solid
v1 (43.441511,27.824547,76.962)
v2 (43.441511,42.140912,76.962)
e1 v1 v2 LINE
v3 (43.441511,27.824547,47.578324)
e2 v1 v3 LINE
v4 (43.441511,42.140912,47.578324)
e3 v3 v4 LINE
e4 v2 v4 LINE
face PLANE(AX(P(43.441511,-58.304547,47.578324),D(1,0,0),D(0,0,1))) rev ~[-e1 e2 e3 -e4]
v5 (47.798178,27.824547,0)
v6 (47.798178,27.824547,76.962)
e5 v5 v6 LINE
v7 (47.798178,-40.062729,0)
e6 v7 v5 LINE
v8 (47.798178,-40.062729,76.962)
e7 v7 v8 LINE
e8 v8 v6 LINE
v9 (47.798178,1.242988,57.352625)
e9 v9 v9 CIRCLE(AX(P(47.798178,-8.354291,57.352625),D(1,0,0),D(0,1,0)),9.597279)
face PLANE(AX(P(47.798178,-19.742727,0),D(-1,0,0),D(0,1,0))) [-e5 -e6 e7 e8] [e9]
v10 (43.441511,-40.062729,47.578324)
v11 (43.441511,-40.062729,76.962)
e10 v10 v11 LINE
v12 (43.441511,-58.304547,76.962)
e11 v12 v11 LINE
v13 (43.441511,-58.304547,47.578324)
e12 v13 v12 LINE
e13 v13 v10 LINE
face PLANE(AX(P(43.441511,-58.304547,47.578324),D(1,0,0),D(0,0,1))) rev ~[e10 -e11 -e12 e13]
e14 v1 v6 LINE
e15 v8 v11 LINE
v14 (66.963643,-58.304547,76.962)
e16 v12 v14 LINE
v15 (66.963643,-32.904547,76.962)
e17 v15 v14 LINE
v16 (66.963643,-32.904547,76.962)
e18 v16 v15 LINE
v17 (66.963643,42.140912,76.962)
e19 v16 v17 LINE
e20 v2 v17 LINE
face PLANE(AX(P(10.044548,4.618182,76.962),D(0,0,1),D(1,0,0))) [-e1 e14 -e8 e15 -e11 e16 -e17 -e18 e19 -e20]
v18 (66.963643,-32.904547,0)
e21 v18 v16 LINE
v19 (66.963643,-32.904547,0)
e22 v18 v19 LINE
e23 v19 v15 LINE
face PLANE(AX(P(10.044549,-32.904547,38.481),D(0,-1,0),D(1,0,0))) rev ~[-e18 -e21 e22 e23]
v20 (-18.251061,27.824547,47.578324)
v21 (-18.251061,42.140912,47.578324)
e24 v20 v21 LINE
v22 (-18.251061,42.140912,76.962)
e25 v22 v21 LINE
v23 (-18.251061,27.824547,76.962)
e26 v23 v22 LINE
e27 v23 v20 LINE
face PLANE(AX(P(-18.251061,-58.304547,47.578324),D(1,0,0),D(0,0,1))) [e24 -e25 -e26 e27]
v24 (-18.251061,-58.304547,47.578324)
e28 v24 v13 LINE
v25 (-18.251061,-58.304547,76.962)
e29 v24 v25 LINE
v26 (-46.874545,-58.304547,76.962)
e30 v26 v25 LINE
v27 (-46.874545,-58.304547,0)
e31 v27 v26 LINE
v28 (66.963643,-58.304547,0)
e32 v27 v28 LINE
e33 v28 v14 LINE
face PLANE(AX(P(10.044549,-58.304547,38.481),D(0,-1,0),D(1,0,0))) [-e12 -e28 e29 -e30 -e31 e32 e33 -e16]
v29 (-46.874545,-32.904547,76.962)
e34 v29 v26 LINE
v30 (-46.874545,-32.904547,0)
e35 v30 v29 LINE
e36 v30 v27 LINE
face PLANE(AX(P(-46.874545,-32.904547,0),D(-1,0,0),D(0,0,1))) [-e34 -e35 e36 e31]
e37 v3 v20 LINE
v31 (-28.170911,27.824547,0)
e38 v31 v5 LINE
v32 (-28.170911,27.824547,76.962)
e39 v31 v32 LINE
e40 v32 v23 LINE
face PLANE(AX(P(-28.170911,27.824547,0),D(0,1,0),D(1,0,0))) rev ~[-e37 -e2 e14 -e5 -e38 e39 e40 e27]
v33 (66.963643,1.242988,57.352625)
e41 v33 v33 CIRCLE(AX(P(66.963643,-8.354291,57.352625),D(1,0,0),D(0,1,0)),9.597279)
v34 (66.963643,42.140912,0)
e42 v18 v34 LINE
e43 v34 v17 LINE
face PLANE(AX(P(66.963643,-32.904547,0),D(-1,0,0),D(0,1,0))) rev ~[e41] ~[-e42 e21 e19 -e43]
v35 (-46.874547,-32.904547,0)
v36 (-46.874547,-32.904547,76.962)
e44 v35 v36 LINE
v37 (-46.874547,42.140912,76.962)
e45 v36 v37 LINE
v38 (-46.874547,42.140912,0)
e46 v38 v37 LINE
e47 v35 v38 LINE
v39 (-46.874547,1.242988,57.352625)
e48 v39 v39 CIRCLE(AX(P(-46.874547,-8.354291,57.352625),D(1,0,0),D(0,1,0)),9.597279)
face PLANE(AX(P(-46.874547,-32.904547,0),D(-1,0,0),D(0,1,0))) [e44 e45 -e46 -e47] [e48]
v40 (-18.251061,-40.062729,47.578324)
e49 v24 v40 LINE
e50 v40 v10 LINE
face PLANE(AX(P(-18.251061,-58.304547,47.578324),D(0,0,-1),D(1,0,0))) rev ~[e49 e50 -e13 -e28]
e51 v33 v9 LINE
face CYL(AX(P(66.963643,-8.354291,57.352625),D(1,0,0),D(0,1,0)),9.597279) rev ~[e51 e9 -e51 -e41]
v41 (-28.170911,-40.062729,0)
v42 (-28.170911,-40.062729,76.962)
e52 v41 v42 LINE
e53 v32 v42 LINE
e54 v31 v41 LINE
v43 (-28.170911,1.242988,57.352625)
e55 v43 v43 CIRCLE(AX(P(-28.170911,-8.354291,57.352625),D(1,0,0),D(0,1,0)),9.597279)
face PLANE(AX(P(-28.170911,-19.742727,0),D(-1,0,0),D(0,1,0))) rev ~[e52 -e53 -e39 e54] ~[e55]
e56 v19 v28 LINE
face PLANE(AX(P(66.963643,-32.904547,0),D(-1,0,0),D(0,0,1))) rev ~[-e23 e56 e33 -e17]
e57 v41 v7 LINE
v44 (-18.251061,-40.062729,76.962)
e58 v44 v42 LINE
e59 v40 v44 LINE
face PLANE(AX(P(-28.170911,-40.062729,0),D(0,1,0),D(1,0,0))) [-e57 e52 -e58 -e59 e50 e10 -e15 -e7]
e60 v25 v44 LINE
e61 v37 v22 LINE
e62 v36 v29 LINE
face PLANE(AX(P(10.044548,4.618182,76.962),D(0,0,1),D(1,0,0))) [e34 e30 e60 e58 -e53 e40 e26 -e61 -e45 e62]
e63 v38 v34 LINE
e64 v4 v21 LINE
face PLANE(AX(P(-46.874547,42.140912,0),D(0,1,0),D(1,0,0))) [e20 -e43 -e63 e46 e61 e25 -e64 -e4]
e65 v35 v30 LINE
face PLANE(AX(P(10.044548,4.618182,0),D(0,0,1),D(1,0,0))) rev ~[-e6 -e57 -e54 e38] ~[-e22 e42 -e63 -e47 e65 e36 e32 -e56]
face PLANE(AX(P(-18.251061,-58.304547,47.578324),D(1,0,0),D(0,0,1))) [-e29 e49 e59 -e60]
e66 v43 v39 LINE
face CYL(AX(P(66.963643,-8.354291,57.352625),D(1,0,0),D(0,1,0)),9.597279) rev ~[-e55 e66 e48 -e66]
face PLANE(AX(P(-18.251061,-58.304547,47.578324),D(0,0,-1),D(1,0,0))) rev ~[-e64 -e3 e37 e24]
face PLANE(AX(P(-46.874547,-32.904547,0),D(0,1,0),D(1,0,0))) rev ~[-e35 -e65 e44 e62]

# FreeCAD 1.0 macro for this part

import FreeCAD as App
import Part
import Sketcher
Q = App.Units.Quantity

doc = App.newDocument("Part")
params = doc.addObject("Spreadsheet::Sheet", "Params")
for row, (alias, value) in enumerate([
    ("pad1_length", "3.03 in"),
    ("sketch2_height", "3.03 in"),
    ("pad2_length", "1 in"),
    ("pocket1_length", "5.23 in"),
    ("pocket2_length", "5.08 in"),
    ("pocket3_length", "9.52 in"),
], start=1):
    params.set(f"A{row}", alias)
    params.set(f"B{row}", "=" + value)
    params.setAlias(f"B{row}", alias)

body = doc.addObject("PartDesign::Body", "Body")

# Sketch on XY plane
sketch1 = body.newObject("Sketcher::SketchObject", "Sketch")
sketch1.AttachmentSupport = (doc.getObject("XY_Plane"), [""])
sketch1.MapMode = "FlatFace"
sketch1.addGeometry(Part.LineSegment(App.Vector(-47, 42, 0), App.Vector(-47, -33, 0)), False)
sketch1.addGeometry(Part.LineSegment(App.Vector(-47, -33, 0), App.Vector(67, -33, 0)), False)
sketch1.addGeometry(Part.LineSegment(App.Vector(67, -33, 0), App.Vector(67, 42, 0)), False)
sketch1.addGeometry(Part.LineSegment(App.Vector(67, 42, 0), App.Vector(-47, 42, 0)), False)
sketch1.addGeometry(Part.LineSegment(App.Vector(48, -20, 0), App.Vector(-28, -20, 0)), False)
sketch1.addGeometry(Part.LineSegment(App.Vector(-28, -20, 0), App.Vector(-28, 28, 0)), False)
sketch1.addGeometry(Part.LineSegment(App.Vector(-28, 28, 0), App.Vector(48, 28, 0)), False)
sketch1.addGeometry(Part.LineSegment(App.Vector(48, 28, 0), App.Vector(48, -20, 0)), False)
sketch1.addConstraint(Sketcher.Constraint("Coincident", 0, 2, 1, 1))
sketch1.addConstraint(Sketcher.Constraint("Coincident", 1, 2, 2, 1))
sketch1.addConstraint(Sketcher.Constraint("Coincident", 2, 2, 3, 1))
sketch1.addConstraint(Sketcher.Constraint("Coincident", 3, 2, 0, 1))
sketch1.addConstraint(Sketcher.Constraint("Coincident", 4, 2, 5, 1))
sketch1.addConstraint(Sketcher.Constraint("Coincident", 5, 2, 6, 1))
sketch1.addConstraint(Sketcher.Constraint("Coincident", 6, 2, 7, 1))
sketch1.addConstraint(Sketcher.Constraint("Coincident", 7, 2, 4, 1))
sketch1.addConstraint(Sketcher.Constraint("Vertical", 0))
sketch1.addConstraint(Sketcher.Constraint("Horizontal", 1))
sketch1.addConstraint(Sketcher.Constraint("Vertical", 2))
sketch1.addConstraint(Sketcher.Constraint("Horizontal", 3))
sketch1.addConstraint(Sketcher.Constraint("Horizontal", 4))
sketch1.addConstraint(Sketcher.Constraint("Vertical", 5))
sketch1.addConstraint(Sketcher.Constraint("Horizontal", 6))
sketch1.addConstraint(Sketcher.Constraint("Vertical", 7))
sketch1.addConstraint(Sketcher.Constraint("DistanceX", 1, 1, 1, 2, 113.838189))
sketch1.addConstraint(Sketcher.Constraint("DistanceX", 4, 2, 4, 1, 75.969089))
sketch1.addConstraint(Sketcher.Constraint("DistanceY", 0, 2, 0, 1, 75.045459))
sketch1.addConstraint(Sketcher.Constraint("DistanceY", 5, 1, 5, 2, 47.567274))
sketch1.addConstraint(Sketcher.Constraint("DistanceY", -1, 1, 2, 2, 42.140912))
sketch1.addConstraint(Sketcher.Constraint("DistanceX", 4, 2, -1, 1, 28.170911))
sketch1.addConstraint(Sketcher.Constraint("DistanceY", 0, 2, 4, 2, 13.161821))
sketch1.addConstraint(Sketcher.Constraint("DistanceX", 0, 2, -1, 1, 46.874547))
pad1 = body.newObject("PartDesign::Pad", "Pad")
pad1.Profile = sketch1
pad1.setExpression("Length", "Params.pad1_length")

# Sketch on XZ plane
sketch2 = body.newObject("Sketcher::SketchObject", "Sketch001")
sketch2.AttachmentSupport = (doc.getObject("XZ_Plane"), [""])
sketch2.MapMode = "FlatFace"
sketch2.AttachmentOffset = App.Placement(App.Vector(0, 0, 32.904547), App.Rotation())
sketch2.addGeometry(Part.LineSegment(App.Vector(-47, 77, 0), App.Vector(-47, 0, 0)), False)
sketch2.addGeometry(Part.LineSegment(App.Vector(-47, 0, 0), App.Vector(67, 0, 0)), False)
sketch2.addGeometry(Part.LineSegment(App.Vector(67, 0, 0), App.Vector(67, 77, 0)), False)
sketch2.addGeometry(Part.LineSegment(App.Vector(67, 77, 0), App.Vector(-47, 77, 0)), False)
sketch2.addConstraint(Sketcher.Constraint("Coincident", 0, 2, 1, 1))
sketch2.addConstraint(Sketcher.Constraint("Coincident", 1, 2, 2, 1))
sketch2.addConstraint(Sketcher.Constraint("Coincident", 2, 2, 3, 1))
sketch2.addConstraint(Sketcher.Constraint("Coincident", 3, 2, 0, 1))
sketch2.addConstraint(Sketcher.Constraint("Vertical", 0))
sketch2.addConstraint(Sketcher.Constraint("Horizontal", 1))
sketch2.addConstraint(Sketcher.Constraint("Vertical", 2))
sketch2.addConstraint(Sketcher.Constraint("Horizontal", 3))
sketch2.addConstraint(Sketcher.Constraint("PointOnObject", 0, 2, -1))
sketch2.addConstraint(Sketcher.Constraint("DistanceY", 0, 2, 0, 1, Q("3.03 in")))
sketch2.addConstraint(Sketcher.Constraint("DistanceX", 1, 1, 1, 2, 113.838188))
sketch2.addConstraint(Sketcher.Constraint("DistanceX", 0, 2, -1, 1, 46.874545))
sketch2.setExpression("Constraints[9]", "Params.sketch2_height")
pad2 = body.newObject("PartDesign::Pad", "Pad001")
pad2.Profile = sketch2
pad2.setExpression("Length", "Params.pad2_length")

# Sketch on XZ plane
sketch3 = body.newObject("Sketcher::SketchObject", "Sketch002")
sketch3.AttachmentSupport = (doc.getObject("XZ_Plane"), [""])
sketch3.MapMode = "FlatFace"
sketch3.AttachmentOffset = App.Placement(App.Vector(0, 0, 58.304547), App.Rotation())
sketch3.addGeometry(Part.LineSegment(App.Vector(-18, 77, 0), App.Vector(-18, 48, 0)), False)
sketch3.addGeometry(Part.LineSegment(App.Vector(-18, 48, 0), App.Vector(43, 48, 0)), False)
sketch3.addGeometry(Part.LineSegment(App.Vector(43, 48, 0), App.Vector(43, 77, 0)), False)
sketch3.addGeometry(Part.LineSegment(App.Vector(43, 77, 0), App.Vector(-18, 77, 0)), False)
sketch3.addConstraint(Sketcher.Constraint("Coincident", 0, 2, 1, 1))
sketch3.addConstraint(Sketcher.Constraint("Coincident", 1, 2, 2, 1))
sketch3.addConstraint(Sketcher.Constraint("Coincident", 2, 2, 3, 1))
sketch3.addConstraint(Sketcher.Constraint("Coincident", 3, 2, 0, 1))
sketch3.addConstraint(Sketcher.Constraint("Vertical", 0))
sketch3.addConstraint(Sketcher.Constraint("Horizontal", 1))
sketch3.addConstraint(Sketcher.Constraint("Vertical", 2))
sketch3.addConstraint(Sketcher.Constraint("Horizontal", 3))
sketch3.addConstraint(Sketcher.Constraint("DistanceY", -1, 1, 2, 2, Q("3.03 in")))
sketch3.addConstraint(Sketcher.Constraint("DistanceX", 1, 1, 1, 2, 61.692573))
sketch3.addConstraint(Sketcher.Constraint("DistanceY", 0, 2, 0, 1, 29.383676))
sketch3.addConstraint(Sketcher.Constraint("DistanceX", 0, 2, -1, 1, 18.251061))
pocket1 = body.newObject("PartDesign::Pocket", "Pocket")
pocket1.Profile = sketch3
pocket1.setExpression("Length", "Params.pocket1_length")

# Sketch on XY plane
sketch4 = body.newObject("Sketcher::SketchObject", "Sketch003")
sketch4.AttachmentSupport = (doc.getObject("XY_Plane"), [""])
sketch4.MapMode = "FlatFace"
sketch4.addGeometry(Part.LineSegment(App.Vector(-28, 28, 0), App.Vector(-28, -40, 0)), False)
sketch4.addGeometry(Part.LineSegment(App.Vector(-28, -40, 0), App.Vector(48, -40, 0)), False)
sketch4.addGeometry(Part.LineSegment(App.Vector(48, -40, 0), App.Vector(48, 28, 0)), False)
sketch4.addGeometry(Part.LineSegment(App.Vector(48, 28, 0), App.Vector(-28, 28, 0)), False)
sketch4.addConstraint(Sketcher.Constraint("Coincident", 0, 2, 1, 1))
sketch4.addConstraint(Sketcher.Constraint("Coincident", 1, 2, 2, 1))
sketch4.addConstraint(Sketcher.Constraint("Coincident", 2, 2, 3, 1))
sketch4.addConstraint(Sketcher.Constraint("Coincident", 3, 2, 0, 1))
sketch4.addConstraint(Sketcher.Constraint("Vertical", 0))
sketch4.addConstraint(Sketcher.Constraint("Horizontal", 1))
sketch4.addConstraint(Sketcher.Constraint("Vertical", 2))
sketch4.addConstraint(Sketcher.Constraint("Horizontal", 3))
sketch4.addConstraint(Sketcher.Constraint("DistanceX", 1, 1, 1, 2, 75.969089))
sketch4.addConstraint(Sketcher.Constraint("DistanceY", 0, 2, 0, 1, 67.656364))
sketch4.addConstraint(Sketcher.Constraint("DistanceX", 0, 2, -1, 1, 28.170911))
sketch4.addConstraint(Sketcher.Constraint("DistanceY", 0, 2, -1, 1, 40.062729))
pocket2 = body.newObject("PartDesign::Pocket", "Pocket001")
pocket2.Profile = sketch4
pocket2.setExpression("Length", "Params.pocket2_length")
pocket2.Reversed = True

# Sketch on YZ plane
sketch5 = body.newObject("Sketcher::SketchObject", "Sketch004")
sketch5.AttachmentSupport = (doc.getObject("YZ_Plane"), [""])
sketch5.MapMode = "FlatFace"
sketch5.AttachmentOffset = App.Placement(App.Vector(0, 0, 66.963643), App.Rotation())
sketch5.addGeometry(Part.Circle(App.Vector(-8, 57, 0), App.Vector(0, 0, 1), 10), False)
sketch5.addConstraint(Sketcher.Constraint("Diameter", 0, 19.194558))
sketch5.addConstraint(Sketcher.Constraint("DistanceX", 0, 3, -1, 1, 8.354291))
sketch5.addConstraint(Sketcher.Constraint("DistanceY", -1, 1, 0, 3, 57.352625))
pocket3 = body.newObject("PartDesign::Pocket", "Pocket002")
pocket3.Profile = sketch5
pocket3.setExpression("Length", "Params.pocket3_length")

doc.recompute()
